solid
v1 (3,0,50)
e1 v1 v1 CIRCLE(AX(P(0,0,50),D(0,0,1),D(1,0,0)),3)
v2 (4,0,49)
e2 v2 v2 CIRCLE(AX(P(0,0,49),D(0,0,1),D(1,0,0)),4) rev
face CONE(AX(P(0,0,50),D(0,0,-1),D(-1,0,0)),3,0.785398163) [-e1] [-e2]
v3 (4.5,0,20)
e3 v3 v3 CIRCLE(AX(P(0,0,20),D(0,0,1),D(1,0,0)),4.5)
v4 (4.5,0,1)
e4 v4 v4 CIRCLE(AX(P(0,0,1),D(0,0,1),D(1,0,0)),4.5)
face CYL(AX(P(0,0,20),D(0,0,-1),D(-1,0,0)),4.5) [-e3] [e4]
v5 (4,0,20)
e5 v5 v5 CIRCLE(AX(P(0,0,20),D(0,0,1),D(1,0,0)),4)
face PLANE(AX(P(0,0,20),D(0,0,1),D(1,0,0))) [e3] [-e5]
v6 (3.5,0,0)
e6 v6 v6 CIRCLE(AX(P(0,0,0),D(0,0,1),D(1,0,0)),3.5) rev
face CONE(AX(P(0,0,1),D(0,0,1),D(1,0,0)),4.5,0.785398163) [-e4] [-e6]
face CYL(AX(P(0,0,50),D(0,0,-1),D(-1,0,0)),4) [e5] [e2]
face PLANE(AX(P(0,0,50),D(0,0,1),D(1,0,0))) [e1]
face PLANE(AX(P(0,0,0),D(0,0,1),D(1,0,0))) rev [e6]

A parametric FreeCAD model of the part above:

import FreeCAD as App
import Part
import Sketcher
Q = App.Units.Quantity


def edges_at(feature, points):
    """Names of the edges that pass closest to the given points."""
    edges = feature.Shape.Edges
    near = lambda p: min(range(len(edges)), key=lambda i: edges[i].distToShape(Part.Vertex(*p))[0])
    return sorted({f"Edge{near(p) + 1}" for p in points})

doc = App.newDocument("Part")
body = doc.addObject("PartDesign::Body", "Body")

sketch1 = body.newObject("Sketcher::SketchObject", "Sketch")
sketch1.AttachmentSupport = (doc.getObject("XY_Plane"), [""])
sketch1.MapMode = "FlatFace"
sketch1.addGeometry(Part.Circle(App.Vector(0, 0, 0), App.Vector(0, 0, 1), 4.5), False)
sketch1.addConstraint(Sketcher.Constraint("Coincident", 0, 3, -1, 1))
sketch1.addConstraint(Sketcher.Constraint("Diameter", 0, Q("9 mm")))
pad1 = body.newObject("PartDesign::Pad", "Pad")
pad1.Profile = sketch1
pad1.Length = 20

sketch2 = body.newObject("Sketcher::SketchObject", "Sketch001")
sketch2.AttachmentSupport = (doc.getObject("XY_Plane"), [""])
sketch2.MapMode = "FlatFace"
sketch2.AttachmentOffset = App.Placement(App.Vector(0, 0, 20), App.Rotation())
sketch2.addGeometry(Part.Circle(App.Vector(0, 0, 0), App.Vector(0, 0, 1), 4), False)
sketch2.addConstraint(Sketcher.Constraint("Coincident", 0, 3, -1, 1))
sketch2.addConstraint(Sketcher.Constraint("Diameter", 0, Q("8 mm")))
pad2 = body.newObject("PartDesign::Pad", "Pad001")
pad2.Profile = sketch2
pad2.Length = 30
doc.recompute()

chamfer = body.newObject("PartDesign::Chamfer", "Chamfer")
chamfer.Base = (pad2, edges_at(pad2, [(-4.5, 0, 0), (-4, 0, 50)]))
chamfer.Size = 1

doc.recompute()
